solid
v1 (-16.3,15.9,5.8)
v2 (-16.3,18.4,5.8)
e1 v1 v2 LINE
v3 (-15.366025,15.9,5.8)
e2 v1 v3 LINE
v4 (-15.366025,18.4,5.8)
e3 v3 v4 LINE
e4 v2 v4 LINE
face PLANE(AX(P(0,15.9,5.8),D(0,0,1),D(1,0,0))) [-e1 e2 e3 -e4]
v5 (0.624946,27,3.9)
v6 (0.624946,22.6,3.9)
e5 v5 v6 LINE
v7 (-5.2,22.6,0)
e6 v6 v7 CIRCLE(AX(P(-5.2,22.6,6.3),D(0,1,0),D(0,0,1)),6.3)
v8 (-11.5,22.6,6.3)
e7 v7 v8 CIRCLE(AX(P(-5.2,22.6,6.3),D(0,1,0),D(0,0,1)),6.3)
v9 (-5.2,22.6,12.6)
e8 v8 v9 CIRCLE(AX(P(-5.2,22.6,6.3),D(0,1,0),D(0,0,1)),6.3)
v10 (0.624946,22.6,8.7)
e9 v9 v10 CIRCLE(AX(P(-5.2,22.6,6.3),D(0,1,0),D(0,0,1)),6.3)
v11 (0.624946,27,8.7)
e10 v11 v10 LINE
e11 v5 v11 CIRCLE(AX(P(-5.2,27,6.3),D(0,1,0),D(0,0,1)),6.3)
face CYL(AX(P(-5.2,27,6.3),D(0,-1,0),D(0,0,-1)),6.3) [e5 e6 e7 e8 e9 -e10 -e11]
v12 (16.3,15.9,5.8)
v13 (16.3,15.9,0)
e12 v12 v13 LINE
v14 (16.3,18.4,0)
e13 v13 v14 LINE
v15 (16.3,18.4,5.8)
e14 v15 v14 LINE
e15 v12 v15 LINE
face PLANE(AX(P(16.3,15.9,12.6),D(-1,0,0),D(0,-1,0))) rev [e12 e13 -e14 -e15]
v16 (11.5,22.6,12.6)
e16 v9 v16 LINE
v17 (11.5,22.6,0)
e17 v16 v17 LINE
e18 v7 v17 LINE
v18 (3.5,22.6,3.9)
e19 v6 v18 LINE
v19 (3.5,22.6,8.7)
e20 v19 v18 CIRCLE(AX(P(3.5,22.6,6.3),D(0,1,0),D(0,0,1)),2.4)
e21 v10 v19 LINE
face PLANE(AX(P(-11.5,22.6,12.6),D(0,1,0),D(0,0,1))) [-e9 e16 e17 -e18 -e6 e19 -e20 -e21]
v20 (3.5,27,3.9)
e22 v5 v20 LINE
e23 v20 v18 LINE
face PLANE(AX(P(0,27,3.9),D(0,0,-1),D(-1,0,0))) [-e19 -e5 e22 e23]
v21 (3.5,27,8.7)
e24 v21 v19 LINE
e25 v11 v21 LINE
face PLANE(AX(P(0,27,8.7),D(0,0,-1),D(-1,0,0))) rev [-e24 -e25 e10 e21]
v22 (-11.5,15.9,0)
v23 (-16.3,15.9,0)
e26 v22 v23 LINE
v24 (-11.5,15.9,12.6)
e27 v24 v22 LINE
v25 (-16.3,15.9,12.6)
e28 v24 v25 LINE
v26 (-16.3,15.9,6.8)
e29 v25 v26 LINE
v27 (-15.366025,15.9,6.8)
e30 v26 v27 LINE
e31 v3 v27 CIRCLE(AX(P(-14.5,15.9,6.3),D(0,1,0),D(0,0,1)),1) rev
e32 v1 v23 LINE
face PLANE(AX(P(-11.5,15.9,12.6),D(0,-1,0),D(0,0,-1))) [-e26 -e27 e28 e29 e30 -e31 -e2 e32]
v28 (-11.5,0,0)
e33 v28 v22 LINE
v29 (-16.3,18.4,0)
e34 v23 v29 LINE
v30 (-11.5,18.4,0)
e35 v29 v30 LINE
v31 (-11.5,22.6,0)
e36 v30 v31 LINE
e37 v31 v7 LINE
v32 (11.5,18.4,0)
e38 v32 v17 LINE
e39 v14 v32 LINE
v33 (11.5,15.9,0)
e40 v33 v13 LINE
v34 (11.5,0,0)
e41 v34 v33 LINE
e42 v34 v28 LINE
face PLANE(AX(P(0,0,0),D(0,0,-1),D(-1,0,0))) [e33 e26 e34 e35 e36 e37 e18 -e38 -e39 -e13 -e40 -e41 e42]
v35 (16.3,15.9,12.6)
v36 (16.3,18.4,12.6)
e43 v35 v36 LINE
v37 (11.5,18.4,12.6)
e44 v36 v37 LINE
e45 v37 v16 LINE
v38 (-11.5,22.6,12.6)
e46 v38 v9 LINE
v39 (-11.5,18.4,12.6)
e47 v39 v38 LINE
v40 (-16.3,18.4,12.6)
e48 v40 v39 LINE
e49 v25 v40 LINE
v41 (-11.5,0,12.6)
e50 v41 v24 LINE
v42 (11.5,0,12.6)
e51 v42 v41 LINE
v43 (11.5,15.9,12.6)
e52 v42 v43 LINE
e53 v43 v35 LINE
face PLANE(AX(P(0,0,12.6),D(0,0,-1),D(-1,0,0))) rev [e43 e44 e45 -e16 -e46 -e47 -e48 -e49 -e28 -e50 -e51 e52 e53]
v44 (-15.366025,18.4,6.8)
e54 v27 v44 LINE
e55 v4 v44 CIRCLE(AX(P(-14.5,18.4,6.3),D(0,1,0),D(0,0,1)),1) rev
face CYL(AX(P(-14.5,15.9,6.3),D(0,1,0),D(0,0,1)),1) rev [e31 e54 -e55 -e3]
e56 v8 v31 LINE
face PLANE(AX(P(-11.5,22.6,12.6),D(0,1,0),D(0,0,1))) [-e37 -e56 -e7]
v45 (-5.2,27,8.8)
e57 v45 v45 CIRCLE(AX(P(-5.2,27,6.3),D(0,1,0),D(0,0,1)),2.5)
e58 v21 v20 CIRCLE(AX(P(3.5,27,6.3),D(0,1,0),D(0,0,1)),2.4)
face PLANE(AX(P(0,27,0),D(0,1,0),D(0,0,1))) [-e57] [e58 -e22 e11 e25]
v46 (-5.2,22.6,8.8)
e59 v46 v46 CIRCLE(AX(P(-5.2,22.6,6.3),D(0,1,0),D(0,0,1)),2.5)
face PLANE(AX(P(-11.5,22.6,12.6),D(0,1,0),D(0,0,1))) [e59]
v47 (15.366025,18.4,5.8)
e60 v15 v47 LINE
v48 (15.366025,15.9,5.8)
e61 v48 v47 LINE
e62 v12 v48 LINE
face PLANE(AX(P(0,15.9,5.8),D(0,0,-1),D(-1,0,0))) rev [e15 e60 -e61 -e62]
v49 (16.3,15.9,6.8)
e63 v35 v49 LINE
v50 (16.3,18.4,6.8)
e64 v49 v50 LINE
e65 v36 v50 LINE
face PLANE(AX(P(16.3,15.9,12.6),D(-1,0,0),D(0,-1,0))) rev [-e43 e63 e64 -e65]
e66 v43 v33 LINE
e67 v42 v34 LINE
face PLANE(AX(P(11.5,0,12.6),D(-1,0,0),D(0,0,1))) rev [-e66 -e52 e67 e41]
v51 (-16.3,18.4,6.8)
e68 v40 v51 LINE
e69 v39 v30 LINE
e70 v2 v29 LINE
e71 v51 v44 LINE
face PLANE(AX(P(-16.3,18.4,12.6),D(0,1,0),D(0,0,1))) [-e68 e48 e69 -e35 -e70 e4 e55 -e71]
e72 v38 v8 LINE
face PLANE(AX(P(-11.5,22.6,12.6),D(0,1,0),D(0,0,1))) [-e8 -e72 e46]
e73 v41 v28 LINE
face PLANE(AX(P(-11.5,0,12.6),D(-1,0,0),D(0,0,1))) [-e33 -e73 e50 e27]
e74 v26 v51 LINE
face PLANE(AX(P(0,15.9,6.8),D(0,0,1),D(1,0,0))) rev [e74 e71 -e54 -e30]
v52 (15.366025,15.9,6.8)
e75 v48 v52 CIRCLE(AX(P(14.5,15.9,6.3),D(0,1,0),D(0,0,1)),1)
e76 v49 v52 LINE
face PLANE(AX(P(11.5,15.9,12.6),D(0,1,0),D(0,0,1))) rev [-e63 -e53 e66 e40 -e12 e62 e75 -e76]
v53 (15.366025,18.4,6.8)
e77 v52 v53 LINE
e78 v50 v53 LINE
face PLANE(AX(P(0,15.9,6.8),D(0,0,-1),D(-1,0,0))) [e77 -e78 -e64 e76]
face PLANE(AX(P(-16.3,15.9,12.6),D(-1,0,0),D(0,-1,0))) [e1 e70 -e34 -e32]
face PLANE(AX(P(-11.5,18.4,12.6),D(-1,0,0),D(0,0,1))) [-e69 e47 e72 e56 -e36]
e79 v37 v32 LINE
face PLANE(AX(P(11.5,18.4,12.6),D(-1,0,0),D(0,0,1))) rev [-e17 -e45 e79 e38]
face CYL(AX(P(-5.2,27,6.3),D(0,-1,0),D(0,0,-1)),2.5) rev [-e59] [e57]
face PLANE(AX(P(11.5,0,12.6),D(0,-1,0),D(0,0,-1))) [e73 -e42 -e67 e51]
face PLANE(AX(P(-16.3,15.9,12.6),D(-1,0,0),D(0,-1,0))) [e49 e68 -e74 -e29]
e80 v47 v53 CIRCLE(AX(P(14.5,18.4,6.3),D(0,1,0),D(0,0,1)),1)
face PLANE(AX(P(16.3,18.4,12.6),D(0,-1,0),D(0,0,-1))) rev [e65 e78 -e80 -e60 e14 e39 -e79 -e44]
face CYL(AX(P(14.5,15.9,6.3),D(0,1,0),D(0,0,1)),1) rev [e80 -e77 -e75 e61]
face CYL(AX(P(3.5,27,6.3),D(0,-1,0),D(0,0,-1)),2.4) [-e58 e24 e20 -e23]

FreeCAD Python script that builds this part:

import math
import FreeCAD as App
import Part
import Sketcher

doc = App.newDocument("Part")
body = doc.addObject("PartDesign::Body", "Body")

# Sketch on XY plane
sketch1 = body.newObject("Sketcher::SketchObject", "Sketch")
sketch1.AttachmentSupport = (doc.getObject("XY_Plane"), [""])
sketch1.MapMode = "FlatFace"
sketch1.addGeometry(Part.LineSegment(App.Vector(-11.5, 0, 0), App.Vector(11.5, 0, 0)), False)
sketch1.addGeometry(Part.LineSegment(App.Vector(11.5, 0, 0), App.Vector(11.5, 15.9, 0)), False)
sketch1.addGeometry(Part.LineSegment(App.Vector(11.5, 15.9, 0), App.Vector(16.3, 15.9, 0)), False)
sketch1.addGeometry(Part.LineSegment(App.Vector(16.3, 15.9, 0), App.Vector(16.3, 18.4, 0)), False)
sketch1.addGeometry(Part.LineSegment(App.Vector(16.3, 18.4, 0), App.Vector(11.5, 18.4, 0)), False)
sketch1.addGeometry(Part.LineSegment(App.Vector(11.5, 18.4, 0), App.Vector(11.5, 22.6, 0)), False)
sketch1.addGeometry(Part.LineSegment(App.Vector(11.5, 22.6, 0), App.Vector(-11.5, 22.6, 0)), False)
sketch1.addGeometry(Part.LineSegment(App.Vector(-11.5, 22.6, 0), App.Vector(-11.5, 18.4, 0)), False)
sketch1.addGeometry(Part.LineSegment(App.Vector(-11.5, 18.4, 0), App.Vector(-16.3, 18.4, 0)), False)
sketch1.addGeometry(Part.LineSegment(App.Vector(-16.3, 18.4, 0), App.Vector(-16.3, 15.9, 0)), False)
sketch1.addGeometry(Part.LineSegment(App.Vector(-16.3, 15.9, 0), App.Vector(-11.5, 15.9, 0)), False)
sketch1.addGeometry(Part.LineSegment(App.Vector(-11.5, 15.9, 0), App.Vector(-11.5, 0, 0)), False)
sketch1.addConstraint(Sketcher.Constraint("Coincident", 0, 2, 1, 1))
sketch1.addConstraint(Sketcher.Constraint("Coincident", 1, 2, 2, 1))
sketch1.addConstraint(Sketcher.Constraint("Coincident", 2, 2, 3, 1))
sketch1.addConstraint(Sketcher.Constraint("Coincident", 3, 2, 4, 1))
sketch1.addConstraint(Sketcher.Constraint("Coincident", 4, 2, 5, 1))
sketch1.addConstraint(Sketcher.Constraint("Coincident", 5, 2, 6, 1))
sketch1.addConstraint(Sketcher.Constraint("Coincident", 6, 2, 7, 1))
sketch1.addConstraint(Sketcher.Constraint("Coincident", 7, 2, 8, 1))
sketch1.addConstraint(Sketcher.Constraint("Coincident", 8, 2, 9, 1))
sketch1.addConstraint(Sketcher.Constraint("Coincident", 9, 2, 10, 1))
sketch1.addConstraint(Sketcher.Constraint("Coincident", 10, 2, 11, 1))
sketch1.addConstraint(Sketcher.Constraint("Coincident", 11, 2, 0, 1))
sketch1.addConstraint(Sketcher.Constraint("Horizontal", 0))
sketch1.addConstraint(Sketcher.Constraint("Vertical", 1))
sketch1.addConstraint(Sketcher.Constraint("Horizontal", 2))
sketch1.addConstraint(Sketcher.Constraint("Vertical", 3))
sketch1.addConstraint(Sketcher.Constraint("Horizontal", 4))
sketch1.addConstraint(Sketcher.Constraint("Vertical", 5))
sketch1.addConstraint(Sketcher.Constraint("Horizontal", 6))
sketch1.addConstraint(Sketcher.Constraint("Vertical", 7))
sketch1.addConstraint(Sketcher.Constraint("Horizontal", 8))
sketch1.addConstraint(Sketcher.Constraint("Vertical", 9))
sketch1.addConstraint(Sketcher.Constraint("Horizontal", 10))
sketch1.addConstraint(Sketcher.Constraint("Vertical", 11))
sketch1.addConstraint(Sketcher.Constraint("Symmetric", 0, 2, 11, 2, -1, 1))
sketch1.addConstraint(Sketcher.Constraint("Symmetric", 4, 2, 7, 2, -2))
sketch1.addConstraint(Sketcher.Constraint("Symmetric", 2, 2, 9, 2, -2))
sketch1.addConstraint(Sketcher.Constraint("Vertical", 1, 2, 4, 2))
sketch1.addConstraint(Sketcher.Constraint("DistanceX", 0, 1, 0, 2, 23.0))
sketch1.addConstraint(Sketcher.Constraint("DistanceX", 2, 1, 2, 2, 4.8))
sketch1.addConstraint(Sketcher.Constraint("DistanceY", 1, 1, 1, 2, 15.9))
sketch1.addConstraint(Sketcher.Constraint("DistanceY", 3, 1, 3, 2, 2.5))
sketch1.addConstraint(Sketcher.Constraint("DistanceY", 5, 1, 5, 2, 4.2))
pad1 = body.newObject("PartDesign::Pad", "Pad")
pad1.Profile = sketch1
pad1.Length = 12.6

# Sketch on XZ plane
sketch2 = body.newObject("Sketcher::SketchObject", "Sketch001")
sketch2.AttachmentSupport = (doc.getObject("XZ_Plane"), [""])
sketch2.MapMode = "FlatFace"
sketch2.AttachmentOffset = App.Placement(App.Vector(0, 0, -18.4), App.Rotation())
sketch2.addGeometry(Part.ArcOfCircle(Part.Circle(App.Vector(-14.5, 6.3, 0), App.Vector(0, 0, 1), 1), math.radians(-150), math.radians(150)), False)
sketch2.addGeometry(Part.LineSegment(App.Vector(-15.4, 5.8, 0), App.Vector(-16.3, 5.8, 0)), False)
sketch2.addGeometry(Part.LineSegment(App.Vector(-16.3, 5.8, 0), App.Vector(-16.3, 6.8, 0)), False)
sketch2.addGeometry(Part.LineSegment(App.Vector(-16.3, 6.8, 0), App.Vector(-15.4, 6.8, 0)), False)
sketch2.addGeometry(Part.LineSegment(App.Vector(15.4, 6.8, 0), App.Vector(16.3, 6.8, 0)), False)
sketch2.addGeometry(Part.LineSegment(App.Vector(16.3, 6.8, 0), App.Vector(16.3, 5.8, 0)), False)
sketch2.addGeometry(Part.LineSegment(App.Vector(16.3, 5.8, 0), App.Vector(15.4, 5.8, 0)), False)
sketch2.addGeometry(Part.ArcOfCircle(Part.Circle(App.Vector(14.5, 6.3, 0), App.Vector(0, 0, 1), 1), math.radians(30), math.radians(330)), False)
sketch2.addConstraint(Sketcher.Constraint("Coincident", 0, 1, 1, 1))
sketch2.addConstraint(Sketcher.Constraint("Coincident", 1, 2, 2, 1))
sketch2.addConstraint(Sketcher.Constraint("Coincident", 2, 2, 3, 1))
sketch2.addConstraint(Sketcher.Constraint("Coincident", 3, 2, 0, 2))
sketch2.addConstraint(Sketcher.Constraint("Coincident", 4, 2, 5, 1))
sketch2.addConstraint(Sketcher.Constraint("Coincident", 5, 2, 6, 1))
sketch2.addConstraint(Sketcher.Constraint("Coincident", 6, 2, 7, 2))
sketch2.addConstraint(Sketcher.Constraint("Coincident", 7, 1, 4, 1))
sketch2.addConstraint(Sketcher.Constraint("Horizontal", 1))
sketch2.addConstraint(Sketcher.Constraint("Vertical", 2))
sketch2.addConstraint(Sketcher.Constraint("Horizontal", 3))
sketch2.addConstraint(Sketcher.Constraint("Horizontal", 4))
sketch2.addConstraint(Sketcher.Constraint("Vertical", 5))
sketch2.addConstraint(Sketcher.Constraint("Horizontal", 6))
sketch2.addConstraint(Sketcher.Constraint("Equal", 0, 7))
sketch2.addConstraint(Sketcher.Constraint("Symmetric", 0, 3, 7, 3, -2))
sketch2.addConstraint(Sketcher.Constraint("Symmetric", 2, 2, 4, 2, -2))
sketch2.addConstraint(Sketcher.Constraint("Horizontal", 1, 2, 5, 2))
sketch2.addConstraint(Sketcher.Constraint("Vertical", 0, 1, 3, 2))
sketch2.addConstraint(Sketcher.Constraint("Radius", 0, 1.0))
sketch2.addConstraint(Sketcher.Constraint("DistanceY", 2, 1, 2, 2, 1.0))
sketch2.addConstraint(Sketcher.Constraint("DistanceX", 0, 3, 7, 3, 29.0))
sketch2.addConstraint(Sketcher.Constraint("DistanceY", -1, 1, 0, 3, 6.3))
sketch2.addConstraint(Sketcher.Constraint("DistanceX", 1, 2, -1, 1, 16.3))
pocket1 = body.newObject("PartDesign::Pocket", "Pocket")
pocket1.Profile = sketch2
pocket1.Length = 2.5
pocket1.Reversed = True

# Sketch on XZ plane
sketch3 = body.newObject("Sketcher::SketchObject", "Sketch002")
sketch3.AttachmentSupport = (doc.getObject("XZ_Plane"), [""])
sketch3.MapMode = "FlatFace"
sketch3.AttachmentOffset = App.Placement(App.Vector(0, 0, -22.6), App.Rotation())
sketch3.addGeometry(Part.LineSegment(App.Vector(0.6, 8.7, 0), App.Vector(3.5, 8.7, 0)), False)
sketch3.addGeometry(Part.ArcOfCircle(Part.Circle(App.Vector(3.5, 6.3, 0), App.Vector(0, 0, 1), 2.4), math.radians(-90), math.radians(90)), False)
sketch3.addGeometry(Part.LineSegment(App.Vector(3.5, 3.9, 0), App.Vector(0.6, 3.9, 0)), False)
sketch3.addGeometry(Part.ArcOfCircle(Part.Circle(App.Vector(-5.2, 6.3, 0), App.Vector(0, 0, 1), 6.3), math.radians(22), math.radians(338)), False)
sketch3.addGeometry(Part.Circle(App.Vector(-5.2, 6.3, 0), App.Vector(0, 0, 1), 2.5), False)
sketch3.addConstraint(Sketcher.Constraint("Tangent", 0, 2, 1, 2))
sketch3.addConstraint(Sketcher.Constraint("Tangent", 1, 1, 2, 1))
sketch3.addConstraint(Sketcher.Constraint("Coincident", 2, 2, 3, 2))
sketch3.addConstraint(Sketcher.Constraint("Coincident", 3, 1, 0, 1))
sketch3.addConstraint(Sketcher.Constraint("Horizontal", 0))
sketch3.addConstraint(Sketcher.Constraint("Horizontal", 2))
sketch3.addConstraint(Sketcher.Constraint("Coincident", 4, 3, 3, 3))
sketch3.addConstraint(Sketcher.Constraint("Horizontal", 1, 3, 3, 3))
sketch3.addConstraint(Sketcher.Constraint("Diameter", 4, 5.0))
sketch3.addConstraint(Sketcher.Constraint("Radius", 1, 2.4))
sketch3.addConstraint(Sketcher.Constraint("Radius", 3, 6.3))
sketch3.addConstraint(Sketcher.Constraint("DistanceX", -1, 1, 1, 3, 3.5))
sketch3.addConstraint(Sketcher.Constraint("DistanceY", -1, 1, 1, 3, 6.3))
sketch3.addConstraint(Sketcher.Constraint("DistanceX", 3, 3, -1, 1, 5.2))
pad2 = body.newObject("PartDesign::Pad", "Pad001")
pad2.Profile = sketch3
pad2.Length = 4.4
pad2.Reversed = True

doc.recompute()
